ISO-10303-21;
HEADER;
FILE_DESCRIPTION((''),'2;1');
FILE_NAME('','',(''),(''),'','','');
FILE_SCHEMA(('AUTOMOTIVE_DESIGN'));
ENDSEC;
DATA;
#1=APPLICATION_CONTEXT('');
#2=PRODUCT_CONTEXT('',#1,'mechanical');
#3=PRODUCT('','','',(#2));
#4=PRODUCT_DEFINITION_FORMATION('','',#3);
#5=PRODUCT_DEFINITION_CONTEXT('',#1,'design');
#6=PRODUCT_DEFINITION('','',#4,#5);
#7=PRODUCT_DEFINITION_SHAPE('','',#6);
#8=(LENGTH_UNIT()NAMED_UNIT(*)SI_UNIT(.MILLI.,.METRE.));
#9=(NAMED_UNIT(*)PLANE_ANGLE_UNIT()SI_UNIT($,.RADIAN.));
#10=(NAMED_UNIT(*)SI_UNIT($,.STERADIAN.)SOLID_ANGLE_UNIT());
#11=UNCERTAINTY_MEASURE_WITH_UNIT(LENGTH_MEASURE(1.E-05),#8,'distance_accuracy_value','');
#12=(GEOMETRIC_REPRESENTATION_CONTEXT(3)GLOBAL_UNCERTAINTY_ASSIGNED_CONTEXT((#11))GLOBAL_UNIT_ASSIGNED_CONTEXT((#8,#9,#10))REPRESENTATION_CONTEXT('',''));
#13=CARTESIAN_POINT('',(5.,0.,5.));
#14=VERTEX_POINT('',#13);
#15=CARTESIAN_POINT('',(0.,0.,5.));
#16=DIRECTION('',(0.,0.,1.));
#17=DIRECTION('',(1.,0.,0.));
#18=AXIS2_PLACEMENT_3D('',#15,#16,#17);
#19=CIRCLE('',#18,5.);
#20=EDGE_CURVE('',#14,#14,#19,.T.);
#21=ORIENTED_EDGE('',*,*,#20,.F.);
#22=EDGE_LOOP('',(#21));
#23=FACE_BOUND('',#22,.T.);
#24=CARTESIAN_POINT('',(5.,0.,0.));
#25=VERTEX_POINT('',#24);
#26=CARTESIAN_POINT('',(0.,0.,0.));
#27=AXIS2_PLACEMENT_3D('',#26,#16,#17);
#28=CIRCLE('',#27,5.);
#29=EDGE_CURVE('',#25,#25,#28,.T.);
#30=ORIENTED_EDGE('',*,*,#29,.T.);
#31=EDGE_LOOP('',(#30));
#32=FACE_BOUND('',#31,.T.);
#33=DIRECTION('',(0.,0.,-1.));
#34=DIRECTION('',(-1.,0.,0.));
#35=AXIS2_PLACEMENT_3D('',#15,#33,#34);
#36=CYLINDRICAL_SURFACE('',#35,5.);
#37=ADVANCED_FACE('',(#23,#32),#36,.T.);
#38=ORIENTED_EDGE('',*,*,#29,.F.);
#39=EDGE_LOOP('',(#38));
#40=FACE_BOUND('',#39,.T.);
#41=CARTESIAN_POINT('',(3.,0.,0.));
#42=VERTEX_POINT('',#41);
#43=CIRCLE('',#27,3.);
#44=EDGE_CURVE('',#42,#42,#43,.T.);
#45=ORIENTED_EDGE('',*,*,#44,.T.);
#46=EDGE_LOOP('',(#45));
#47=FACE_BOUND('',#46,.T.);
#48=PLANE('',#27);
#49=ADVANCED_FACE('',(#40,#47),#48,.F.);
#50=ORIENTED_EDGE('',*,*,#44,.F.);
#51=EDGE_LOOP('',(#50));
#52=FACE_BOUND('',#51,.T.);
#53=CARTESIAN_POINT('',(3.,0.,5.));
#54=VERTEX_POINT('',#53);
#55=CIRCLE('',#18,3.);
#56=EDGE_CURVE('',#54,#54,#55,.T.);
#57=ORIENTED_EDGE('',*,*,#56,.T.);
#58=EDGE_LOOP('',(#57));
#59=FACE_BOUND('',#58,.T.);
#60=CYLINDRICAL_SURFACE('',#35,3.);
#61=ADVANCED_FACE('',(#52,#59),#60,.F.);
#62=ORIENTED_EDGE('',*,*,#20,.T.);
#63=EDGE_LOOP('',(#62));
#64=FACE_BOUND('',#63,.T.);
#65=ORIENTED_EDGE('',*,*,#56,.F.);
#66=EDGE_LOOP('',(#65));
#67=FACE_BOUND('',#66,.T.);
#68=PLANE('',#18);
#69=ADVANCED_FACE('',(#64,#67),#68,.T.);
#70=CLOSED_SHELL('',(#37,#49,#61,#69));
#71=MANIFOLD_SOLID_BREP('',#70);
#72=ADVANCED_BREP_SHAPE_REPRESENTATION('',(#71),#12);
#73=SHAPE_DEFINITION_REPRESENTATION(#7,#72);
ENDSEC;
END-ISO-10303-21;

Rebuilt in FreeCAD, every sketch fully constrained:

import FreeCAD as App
import Part
import Sketcher
Q = App.Units.Quantity

doc = App.newDocument("Part")
body = doc.addObject("PartDesign::Body", "Body")

sketch1 = doc.addObject("Sketcher::SketchObject", "Sketch")
body.addObject(sketch1)
sketch1.AttachmentSupport = (doc.XY_Plane, [""])
sketch1.MapMode = "FlatFace"
sketch1.addGeometry([
    Part.Circle(App.Vector(0, 0, 0), App.Vector(0, 0, 1), 5),
    Part.Circle(App.Vector(0, 0, 0), App.Vector(0, 0, 1), 3),
], False)
sketch1.addConstraint([
    Sketcher.Constraint("Coincident", 0, 3, -1, 1),
    Sketcher.Constraint("Coincident", 1, 3, -1, 1),
    Sketcher.Constraint("Diameter", 0, Q("10 mm")),
    Sketcher.Constraint("Diameter", 1, Q("6 mm")),
])
pad1 = doc.addObject("PartDesign::Pad", "Pad")
body.addObject(pad1)
pad1.Profile = sketch1
pad1.Length = 5

doc.recompute()
